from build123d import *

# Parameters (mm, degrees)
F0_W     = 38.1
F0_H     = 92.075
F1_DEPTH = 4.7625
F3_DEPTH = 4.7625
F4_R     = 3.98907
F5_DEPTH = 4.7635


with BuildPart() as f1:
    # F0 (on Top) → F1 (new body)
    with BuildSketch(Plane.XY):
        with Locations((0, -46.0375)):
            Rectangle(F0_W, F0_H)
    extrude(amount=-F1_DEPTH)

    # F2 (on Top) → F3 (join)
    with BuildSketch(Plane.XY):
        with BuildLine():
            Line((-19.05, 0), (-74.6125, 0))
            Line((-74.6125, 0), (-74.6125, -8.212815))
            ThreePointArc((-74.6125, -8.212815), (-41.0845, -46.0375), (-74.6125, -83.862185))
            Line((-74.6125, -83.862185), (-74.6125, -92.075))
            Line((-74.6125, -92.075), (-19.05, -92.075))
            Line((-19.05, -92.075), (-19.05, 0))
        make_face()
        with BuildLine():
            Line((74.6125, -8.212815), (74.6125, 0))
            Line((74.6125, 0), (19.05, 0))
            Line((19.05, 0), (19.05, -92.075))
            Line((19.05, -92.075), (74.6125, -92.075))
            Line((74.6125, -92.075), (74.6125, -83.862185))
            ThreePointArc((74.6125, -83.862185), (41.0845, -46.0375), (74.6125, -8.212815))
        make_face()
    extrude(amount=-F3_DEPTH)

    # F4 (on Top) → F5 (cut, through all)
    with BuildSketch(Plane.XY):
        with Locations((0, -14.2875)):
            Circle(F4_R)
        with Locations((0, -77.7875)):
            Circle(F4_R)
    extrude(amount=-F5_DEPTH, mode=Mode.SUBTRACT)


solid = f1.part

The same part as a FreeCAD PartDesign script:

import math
import FreeCAD as App
import Part
import Sketcher
from FreeCAD import Vector
Q = App.Units.Quantity

doc = App.newDocument("Part")
body = doc.addObject("PartDesign::Body", "Body")

# Sketch on XY plane
sketch1 = doc.addObject("Sketcher::SketchObject", "Sketch")
body.addObject(sketch1)
sketch1.AttachmentSupport = (doc.XY_Plane, [""])
sketch1.MapMode = "FlatFace"
sketch1.addGeometry(Part.LineSegment(Vector(-19.05, 0, 0), Vector(-19.05, -92.075, 0)), False)
sketch1.addGeometry(Part.LineSegment(Vector(-19.05, -92.075, 0), Vector(19.05, -92.075, 0)), False)
sketch1.addGeometry(Part.LineSegment(Vector(19.05, -92.075, 0), Vector(19.05, 0, 0)), False)
sketch1.addGeometry(Part.LineSegment(Vector(19.05, 0, 0), Vector(-19.05, 0, 0)), False)
sketch1.addConstraint(Sketcher.Constraint("Coincident", 0, 2, 1, 1))
sketch1.addConstraint(Sketcher.Constraint("Coincident", 1, 2, 2, 1))
sketch1.addConstraint(Sketcher.Constraint("Coincident", 2, 2, 3, 1))
sketch1.addConstraint(Sketcher.Constraint("Coincident", 3, 2, 0, 1))
sketch1.addConstraint(Sketcher.Constraint("Vertical", 0))
sketch1.addConstraint(Sketcher.Constraint("Horizontal", 1))
sketch1.addConstraint(Sketcher.Constraint("Vertical", 2))
sketch1.addConstraint(Sketcher.Constraint("Horizontal", 3))
sketch1.addConstraint(Sketcher.Constraint("Symmetric", 2, 2, 3, 2, -1, 1))
sketch1.addConstraint(Sketcher.Constraint("DistanceX", 1, 1, 1, 2, Q("1.5 in")))
sketch1.addConstraint(Sketcher.Constraint("DistanceY", 0, 2, 0, 1, Q("3.625 in")))
pad1 = doc.addObject("PartDesign::Pad", "Pad")
body.addObject(pad1)
pad1.Profile = sketch1
pad1.Length = Q("0.1875 in")
pad1.Reversed = True

# Sketch on XY plane
sketch2 = doc.addObject("Sketcher::SketchObject", "Sketch001")
body.addObject(sketch2)
sketch2.AttachmentSupport = (doc.XY_Plane, [""])
sketch2.MapMode = "FlatFace"
sketch2.addGeometry(Part.LineSegment(Vector(-19.05, 0, 0), Vector(-74.6125, 0, 0)), False)
sketch2.addGeometry(Part.LineSegment(Vector(-74.6125, 0, 0), Vector(-74.6125, -8.212815, 0)), False)
sketch2.addGeometry(Part.ArcOfCircle(Part.Circle(Vector(-79.1845, -46.0375, 0), Vector(0, 0, 1), 38.1), math.radians(-83.107898), math.radians(83.107898)), False)
sketch2.addGeometry(Part.LineSegment(Vector(-74.6125, -83.862185, 0), Vector(-74.6125, -92.075, 0)), False)
sketch2.addGeometry(Part.LineSegment(Vector(-74.6125, -92.075, 0), Vector(-19.05, -92.075, 0)), False)
sketch2.addGeometry(Part.LineSegment(Vector(-19.05, -92.075, 0), Vector(-19.05, 0, 0)), False)
sketch2.addGeometry(Part.LineSegment(Vector(74.6125, -8.212815, 0), Vector(74.6125, 0, 0)), False)
sketch2.addGeometry(Part.LineSegment(Vector(74.6125, 0, 0), Vector(19.05, 0, 0)), False)
sketch2.addGeometry(Part.LineSegment(Vector(19.05, 0, 0), Vector(19.05, -92.075, 0)), False)
sketch2.addGeometry(Part.LineSegment(Vector(19.05, -92.075, 0), Vector(74.6125, -92.075, 0)), False)
sketch2.addGeometry(Part.LineSegment(Vector(74.6125, -92.075, 0), Vector(74.6125, -83.862185, 0)), False)
sketch2.addGeometry(Part.ArcOfCircle(Part.Circle(Vector(79.1845, -46.0375, 0), Vector(0, 0, 1), 38.1), math.radians(96.892102), math.radians(263.107898)), False)
sketch2.addConstraint(Sketcher.Constraint("Coincident", 0, 2, 1, 1))
sketch2.addConstraint(Sketcher.Constraint("Coincident", 1, 2, 2, 2))
sketch2.addConstraint(Sketcher.Constraint("Coincident", 2, 1, 3, 1))
sketch2.addConstraint(Sketcher.Constraint("Coincident", 3, 2, 4, 1))
sketch2.addConstraint(Sketcher.Constraint("Coincident", 4, 2, 5, 1))
sketch2.addConstraint(Sketcher.Constraint("Coincident", 5, 2, 0, 1))
sketch2.addConstraint(Sketcher.Constraint("Coincident", 6, 2, 7, 1))
sketch2.addConstraint(Sketcher.Constraint("Coincident", 7, 2, 8, 1))
sketch2.addConstraint(Sketcher.Constraint("Coincident", 8, 2, 9, 1))
sketch2.addConstraint(Sketcher.Constraint("Coincident", 9, 2, 10, 1))
sketch2.addConstraint(Sketcher.Constraint("Coincident", 10, 2, 11, 2))
sketch2.addConstraint(Sketcher.Constraint("Coincident", 11, 1, 6, 1))
sketch2.addConstraint(Sketcher.Constraint("Horizontal", 0))
sketch2.addConstraint(Sketcher.Constraint("Vertical", 1))
sketch2.addConstraint(Sketcher.Constraint("Vertical", 3))
sketch2.addConstraint(Sketcher.Constraint("Horizontal", 4))
sketch2.addConstraint(Sketcher.Constraint("Vertical", 5))
sketch2.addConstraint(Sketcher.Constraint("Vertical", 6))
sketch2.addConstraint(Sketcher.Constraint("Horizontal", 7))
sketch2.addConstraint(Sketcher.Constraint("Vertical", 8))
sketch2.addConstraint(Sketcher.Constraint("Horizontal", 9))
sketch2.addConstraint(Sketcher.Constraint("Vertical", 10))
sketch2.addConstraint(Sketcher.Constraint("Equal", 2, 11))
sketch2.addConstraint(Sketcher.Constraint("Symmetric", 0, 2, 6, 2, -1, 1))
sketch2.addConstraint(Sketcher.Constraint("Symmetric", 2, 3, 11, 3, -2))
sketch2.addConstraint(Sketcher.Constraint("Symmetric", 5, 2, 7, 2, -2))
sketch2.addConstraint(Sketcher.Constraint("Symmetric", 3, 2, 9, 2, -2))
sketch2.addConstraint(Sketcher.Constraint("Vertical", 1, 2, 2, 1))
sketch2.addConstraint(Sketcher.Constraint("Equal", 1, 3))
sketch2.addConstraint(Sketcher.Constraint("Radius", 2, Q("1.5 in")))
sketch2.addConstraint(Sketcher.Constraint("DistanceX", 5, 2, 7, 2, Q("1.5 in")))
sketch2.addConstraint(Sketcher.Constraint("DistanceX", 0, 2, 0, 1, Q("2.1875 in")))
sketch2.addConstraint(Sketcher.Constraint("DistanceY", 5, 1, 5, 2, Q("3.625 in")))
sketch2.addConstraint(Sketcher.Constraint("DistanceX", 2, 3, 0, 2, Q("0.18 in")))
pad2 = doc.addObject("PartDesign::Pad", "Pad001")
body.addObject(pad2)
pad2.Profile = sketch2
pad2.Length = Q("0.1875 in")
pad2.Reversed = True

# Sketch on XY plane
sketch3 = doc.addObject("Sketcher::SketchObject", "Sketch002")
body.addObject(sketch3)
sketch3.AttachmentSupport = (doc.XY_Plane, [""])
sketch3.MapMode = "FlatFace"
sketch3.addGeometry(Part.Circle(Vector(0, -14.2875, 0), Vector(0, 0, 1), 3.98907), False)
sketch3.addGeometry(Part.Circle(Vector(0, -77.7875, 0), Vector(0, 0, 1), 3.98907), False)
sketch3.addConstraint(Sketcher.Constraint("Equal", 0, 1))
sketch3.addConstraint(Sketcher.Constraint("PointOnObject", 0, 3, -2))
sketch3.addConstraint(Sketcher.Constraint("PointOnObject", 1, 3, -2))
sketch3.addConstraint(Sketcher.Constraint("Diameter", 0, Q("0.3141 in")))
sketch3.addConstraint(Sketcher.Constraint("DistanceY", 1, 3, 0, 3, Q("2.5 in")))
sketch3.addConstraint(Sketcher.Constraint("DistanceY", 0, 3, -1, 1, Q("0.5625 in")))
pocket1 = doc.addObject("PartDesign::Pocket", "Pocket")
body.addObject(pocket1)
pocket1.Profile = sketch3
pocket1.Type = "ThroughAll"

doc.recompute()
